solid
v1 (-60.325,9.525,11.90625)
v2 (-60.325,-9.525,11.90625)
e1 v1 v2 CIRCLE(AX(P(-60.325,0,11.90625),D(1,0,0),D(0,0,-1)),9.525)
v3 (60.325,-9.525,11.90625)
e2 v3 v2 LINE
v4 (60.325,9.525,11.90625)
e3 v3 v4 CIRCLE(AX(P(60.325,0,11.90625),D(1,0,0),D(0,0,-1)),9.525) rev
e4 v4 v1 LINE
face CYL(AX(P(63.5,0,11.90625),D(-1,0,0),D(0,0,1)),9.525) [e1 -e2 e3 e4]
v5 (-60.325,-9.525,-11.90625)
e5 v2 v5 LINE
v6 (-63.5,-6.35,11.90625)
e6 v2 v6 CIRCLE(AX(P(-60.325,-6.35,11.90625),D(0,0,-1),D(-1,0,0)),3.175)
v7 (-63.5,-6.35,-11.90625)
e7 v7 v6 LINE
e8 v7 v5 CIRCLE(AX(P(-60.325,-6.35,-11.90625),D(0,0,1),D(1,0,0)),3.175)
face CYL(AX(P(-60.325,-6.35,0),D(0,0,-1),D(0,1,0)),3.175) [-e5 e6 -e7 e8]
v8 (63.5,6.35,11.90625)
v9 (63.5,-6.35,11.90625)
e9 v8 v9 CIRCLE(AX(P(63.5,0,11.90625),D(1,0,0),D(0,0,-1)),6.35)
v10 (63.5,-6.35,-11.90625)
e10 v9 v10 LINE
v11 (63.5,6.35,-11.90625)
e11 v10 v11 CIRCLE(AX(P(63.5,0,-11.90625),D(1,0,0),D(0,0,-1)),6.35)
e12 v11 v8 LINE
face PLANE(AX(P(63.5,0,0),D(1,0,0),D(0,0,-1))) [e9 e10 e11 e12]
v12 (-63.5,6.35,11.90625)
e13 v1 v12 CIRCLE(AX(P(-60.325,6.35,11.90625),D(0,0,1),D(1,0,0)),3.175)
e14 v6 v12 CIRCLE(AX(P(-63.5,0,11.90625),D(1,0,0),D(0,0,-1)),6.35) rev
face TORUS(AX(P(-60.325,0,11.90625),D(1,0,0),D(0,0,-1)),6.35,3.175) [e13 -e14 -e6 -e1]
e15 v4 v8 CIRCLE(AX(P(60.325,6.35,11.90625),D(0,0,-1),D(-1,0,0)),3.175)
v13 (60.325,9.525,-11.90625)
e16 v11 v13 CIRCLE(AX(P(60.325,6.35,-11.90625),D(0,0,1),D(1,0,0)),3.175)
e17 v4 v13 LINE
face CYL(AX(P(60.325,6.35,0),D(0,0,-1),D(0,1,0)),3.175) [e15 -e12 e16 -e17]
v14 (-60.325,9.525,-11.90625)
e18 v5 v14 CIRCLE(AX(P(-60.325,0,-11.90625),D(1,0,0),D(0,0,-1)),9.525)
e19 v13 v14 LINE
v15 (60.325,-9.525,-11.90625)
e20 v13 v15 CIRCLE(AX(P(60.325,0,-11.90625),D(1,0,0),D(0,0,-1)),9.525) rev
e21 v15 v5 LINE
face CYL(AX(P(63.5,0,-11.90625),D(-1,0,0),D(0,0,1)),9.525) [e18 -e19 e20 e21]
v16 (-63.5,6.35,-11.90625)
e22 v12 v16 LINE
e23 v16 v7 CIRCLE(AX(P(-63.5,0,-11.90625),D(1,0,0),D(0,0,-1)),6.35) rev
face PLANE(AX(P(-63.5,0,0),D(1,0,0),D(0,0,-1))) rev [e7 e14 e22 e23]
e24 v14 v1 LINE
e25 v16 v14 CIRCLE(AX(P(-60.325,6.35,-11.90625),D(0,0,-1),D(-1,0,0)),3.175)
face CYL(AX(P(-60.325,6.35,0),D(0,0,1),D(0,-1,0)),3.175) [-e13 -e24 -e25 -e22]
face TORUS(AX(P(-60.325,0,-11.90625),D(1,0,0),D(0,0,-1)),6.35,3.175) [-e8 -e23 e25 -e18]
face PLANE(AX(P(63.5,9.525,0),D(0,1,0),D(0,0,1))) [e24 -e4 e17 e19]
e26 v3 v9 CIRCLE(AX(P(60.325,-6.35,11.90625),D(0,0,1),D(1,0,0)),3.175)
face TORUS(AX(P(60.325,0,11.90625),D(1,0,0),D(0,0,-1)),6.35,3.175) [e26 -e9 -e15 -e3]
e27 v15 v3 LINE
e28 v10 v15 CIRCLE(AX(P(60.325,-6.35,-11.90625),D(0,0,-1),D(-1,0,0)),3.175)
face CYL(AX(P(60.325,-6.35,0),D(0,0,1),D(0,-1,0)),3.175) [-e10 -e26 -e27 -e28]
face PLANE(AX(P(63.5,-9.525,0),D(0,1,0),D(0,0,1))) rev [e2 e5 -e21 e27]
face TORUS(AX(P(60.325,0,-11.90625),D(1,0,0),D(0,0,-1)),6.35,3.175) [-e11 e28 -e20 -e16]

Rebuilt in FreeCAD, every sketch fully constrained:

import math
import FreeCAD as App
import Part
import Sketcher
from FreeCAD import Vector
Q = App.Units.Quantity


def edges_at(feature, points):
    """Names of the edges that pass closest to the given points."""
    edges = feature.Shape.Edges
    near = lambda p: min(range(len(edges)), key=lambda i: edges[i].distToShape(Part.Vertex(*p))[0])
    return sorted({f"Edge{near(p) + 1}" for p in points})

doc = App.newDocument("Part")
body = doc.addObject("PartDesign::Body", "Body")

# Sketch on YZ plane
sketch1 = doc.addObject("Sketcher::SketchObject", "Sketch")
body.addObject(sketch1)
sketch1.AttachmentSupport = (doc.YZ_Plane, [""])
sketch1.MapMode = "FlatFace"
sketch1.addGeometry([
    Part.ArcOfCircle(Part.Circle(Vector(0, 12, 0), Vector(0, 0, 1), 10), math.radians(0), math.radians(180)),
    Part.LineSegment(Vector(-10, 12, 0), Vector(-10, -12, 0)),
    Part.ArcOfCircle(Part.Circle(Vector(0, -12, 0), Vector(0, 0, 1), 10), math.radians(180), math.radians(360)),
    Part.LineSegment(Vector(10, -12, 0), Vector(10, 12, 0)),
], False)
sketch1.addConstraint([
    Sketcher.Constraint("Tangent", 0, 2, 1, 1),
    Sketcher.Constraint("Tangent", 1, 2, 2, 1),
    Sketcher.Constraint("Tangent", 2, 2, 3, 1),
    Sketcher.Constraint("Tangent", 3, 2, 0, 1),
    Sketcher.Constraint("Vertical", 1),
    Sketcher.Constraint("Vertical", 3),
    Sketcher.Constraint("Symmetric", 0, 3, 2, 3, -1, 1),
    Sketcher.Constraint("Radius", 0, Q("0.375 in")),
    Sketcher.Constraint("DistanceY", 1, 2, 1, 1, Q("0.9375 in")),
])
pad1 = doc.addObject("PartDesign::Pad", "Pad")
body.addObject(pad1)
pad1.Profile = sketch1
pad1.Length = Q("5 in")
pad1.Midplane = True
doc.recompute()

fillet = doc.addObject("PartDesign::Fillet", "Fillet")
body.addObject(fillet)
fillet.Base = (pad1, edges_at(pad1, [
    (63.5, 0, -21.431),
    (63.5, 9.525, 0),
    (63.5, 0, 21.431),
    (-63.5, 9.525, 0),
    (-63.5, 0, -21.431),
    (-63.5, -9.525, 0),
    (-63.5, 0, 21.431),
    (63.5, -9.525, 0),
]))
fillet.Radius = Q("0.125 in")

doc.recompute()
